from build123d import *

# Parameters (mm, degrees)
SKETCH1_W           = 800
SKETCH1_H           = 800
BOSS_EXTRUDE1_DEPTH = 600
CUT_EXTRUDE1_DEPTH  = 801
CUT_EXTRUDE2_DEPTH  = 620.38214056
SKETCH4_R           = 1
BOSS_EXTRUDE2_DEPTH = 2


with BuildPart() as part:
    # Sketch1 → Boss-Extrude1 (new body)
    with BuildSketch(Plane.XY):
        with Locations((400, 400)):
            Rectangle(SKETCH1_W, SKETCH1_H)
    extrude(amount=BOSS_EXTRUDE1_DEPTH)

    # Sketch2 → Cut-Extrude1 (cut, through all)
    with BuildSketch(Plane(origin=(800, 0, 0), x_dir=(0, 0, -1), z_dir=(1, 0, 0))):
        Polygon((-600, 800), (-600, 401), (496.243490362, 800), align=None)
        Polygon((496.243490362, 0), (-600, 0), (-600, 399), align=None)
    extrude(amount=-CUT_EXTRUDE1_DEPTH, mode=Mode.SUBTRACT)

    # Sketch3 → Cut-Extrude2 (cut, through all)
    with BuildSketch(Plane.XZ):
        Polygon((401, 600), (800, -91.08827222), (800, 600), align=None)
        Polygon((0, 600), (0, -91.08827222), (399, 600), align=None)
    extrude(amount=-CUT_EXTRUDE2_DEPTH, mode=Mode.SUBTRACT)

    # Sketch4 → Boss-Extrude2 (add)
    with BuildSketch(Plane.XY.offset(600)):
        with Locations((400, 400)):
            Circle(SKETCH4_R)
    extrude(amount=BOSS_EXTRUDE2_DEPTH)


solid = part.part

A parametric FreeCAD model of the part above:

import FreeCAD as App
import Part
import Sketcher
Q = App.Units.Quantity


def add_polygon(sketch, points):
    """Adds a closed chain of lines whose ends are joined by coincident constraints."""
    first, n = sketch.GeometryCount, len(points)
    for a, b in zip(points, points[1:] + points[:1]):
        sketch.addGeometry(Part.LineSegment(App.Vector(*a, 0), App.Vector(*b, 0)), False)
    for i in range(n):
        sketch.addConstraint(Sketcher.Constraint("Coincident", first + i, 2, first + (i + 1) % n, 1))

doc = App.newDocument("Part")
body = doc.addObject("PartDesign::Body", "Body")

# Sketch on XY plane
sketch1 = body.newObject("Sketcher::SketchObject", "Sketch")
sketch1.AttachmentSupport = (doc.getObject("XY_Plane"), [""])
sketch1.MapMode = "FlatFace"
add_polygon(sketch1, [(0, 800), (0, 0), (800, 0), (800, 800)])  # lines 0-3
sketch1.addConstraint(Sketcher.Constraint("Vertical", 0))
sketch1.addConstraint(Sketcher.Constraint("Horizontal", 1))
sketch1.addConstraint(Sketcher.Constraint("Vertical", 2))
sketch1.addConstraint(Sketcher.Constraint("Horizontal", 3))
sketch1.addConstraint(Sketcher.Constraint("Coincident", 0, 2, -1, 1))
sketch1.addConstraint(Sketcher.Constraint("Equal", 3, 0))
sketch1.addConstraint(Sketcher.Constraint("DistanceX", 1, 1, 1, 2, Q("800 mm")))
pad1 = body.newObject("PartDesign::Pad", "Pad")
pad1.Profile = sketch1
pad1.Length = 600

# Sketch on YZ plane
sketch2 = body.newObject("Sketcher::SketchObject", "Sketch001")
sketch2.AttachmentSupport = (doc.getObject("YZ_Plane"), [""])
sketch2.MapMode = "FlatFace"
sketch2.AttachmentOffset = App.Placement(App.Vector(0, 0, 800), App.Rotation())
add_polygon(sketch2, [(800, 600), (401, 600), (800, -496)])  # lines 0-2
add_polygon(sketch2, [(0, 600), (0, -496), (399, 600)])  # lines 3-5
sketch2.addConstraint(Sketcher.Constraint("Horizontal", 0))
sketch2.addConstraint(Sketcher.Constraint("Vertical", 2))
sketch2.addConstraint(Sketcher.Constraint("Vertical", 3))
sketch2.addConstraint(Sketcher.Constraint("Horizontal", 5))
sketch2.addConstraint(Sketcher.Constraint("PointOnObject", 3, 2, -2))
sketch2.addConstraint(Sketcher.Constraint("Horizontal", 1, 2, 3, 2))
sketch2.addConstraint(Sketcher.Constraint("Horizontal", 2, 2, 4, 2))
sketch2.addConstraint(Sketcher.Constraint("Equal", 0, 5))
sketch2.addConstraint(Sketcher.Constraint("DistanceX", 0, 2, 0, 1, Q("399 mm")))
sketch2.addConstraint(Sketcher.Constraint("Angle", 1, Q("-70 deg")))
sketch2.addConstraint(Sketcher.Constraint("DistanceX", -1, 1, 0, 2, Q("401 mm")))
sketch2.addConstraint(Sketcher.Constraint("DistanceY", -1, 1, 0, 2, Q("600 mm")))
pocket1 = body.newObject("PartDesign::Pocket", "Pocket")
pocket1.Profile = sketch2
pocket1.Type = "ThroughAll"

# Sketch on XZ plane
sketch3 = body.newObject("Sketcher::SketchObject", "Sketch002")
sketch3.AttachmentSupport = (doc.getObject("XZ_Plane"), [""])
sketch3.MapMode = "FlatFace"
add_polygon(sketch3, [(401, 600), (800, -91), (800, 600)])  # lines 0-2
add_polygon(sketch3, [(0, 600), (0, -91), (399, 600)])  # lines 3-5
sketch3.addConstraint(Sketcher.Constraint("Vertical", 1))
sketch3.addConstraint(Sketcher.Constraint("Horizontal", 2))
sketch3.addConstraint(Sketcher.Constraint("Vertical", 3))
sketch3.addConstraint(Sketcher.Constraint("Horizontal", 5))
sketch3.addConstraint(Sketcher.Constraint("PointOnObject", 3, 2, -2))
sketch3.addConstraint(Sketcher.Constraint("Horizontal", 0, 2, 3, 2))
sketch3.addConstraint(Sketcher.Constraint("Horizontal", 2, 2, 4, 2))
sketch3.addConstraint(Sketcher.Constraint("Equal", 2, 5))
sketch3.addConstraint(Sketcher.Constraint("DistanceX", 2, 2, 2, 1, Q("399 mm")))
sketch3.addConstraint(Sketcher.Constraint("Angle", 0, Q("-60 deg")))
sketch3.addConstraint(Sketcher.Constraint("DistanceX", -1, 1, 0, 2, Q("800 mm")))
sketch3.addConstraint(Sketcher.Constraint("DistanceY", -1, 1, 1, 2, Q("600 mm")))
pocket2 = body.newObject("PartDesign::Pocket", "Pocket001")
pocket2.Profile = sketch3
pocket2.Type = "ThroughAll"

# Sketch on XY plane
sketch4 = body.newObject("Sketcher::SketchObject", "Sketch003")
sketch4.AttachmentSupport = (doc.getObject("XY_Plane"), [""])
sketch4.MapMode = "FlatFace"
sketch4.AttachmentOffset = App.Placement(App.Vector(0, 0, 600), App.Rotation())
sketch4.addGeometry(Part.Circle(App.Vector(400, 400, 0), App.Vector(0, 0, 1), 1), False)
sketch4.addConstraint(Sketcher.Constraint("Diameter", 0, Q("2 mm")))
sketch4.addConstraint(Sketcher.Constraint("DistanceX", -1, 1, 0, 3, Q("400 mm")))
sketch4.addConstraint(Sketcher.Constraint("DistanceY", -1, 1, 0, 3, Q("400 mm")))
pad2 = body.newObject("PartDesign::Pad", "Pad001")
pad2.Profile = sketch4
pad2.Length = 2

doc.recompute()
